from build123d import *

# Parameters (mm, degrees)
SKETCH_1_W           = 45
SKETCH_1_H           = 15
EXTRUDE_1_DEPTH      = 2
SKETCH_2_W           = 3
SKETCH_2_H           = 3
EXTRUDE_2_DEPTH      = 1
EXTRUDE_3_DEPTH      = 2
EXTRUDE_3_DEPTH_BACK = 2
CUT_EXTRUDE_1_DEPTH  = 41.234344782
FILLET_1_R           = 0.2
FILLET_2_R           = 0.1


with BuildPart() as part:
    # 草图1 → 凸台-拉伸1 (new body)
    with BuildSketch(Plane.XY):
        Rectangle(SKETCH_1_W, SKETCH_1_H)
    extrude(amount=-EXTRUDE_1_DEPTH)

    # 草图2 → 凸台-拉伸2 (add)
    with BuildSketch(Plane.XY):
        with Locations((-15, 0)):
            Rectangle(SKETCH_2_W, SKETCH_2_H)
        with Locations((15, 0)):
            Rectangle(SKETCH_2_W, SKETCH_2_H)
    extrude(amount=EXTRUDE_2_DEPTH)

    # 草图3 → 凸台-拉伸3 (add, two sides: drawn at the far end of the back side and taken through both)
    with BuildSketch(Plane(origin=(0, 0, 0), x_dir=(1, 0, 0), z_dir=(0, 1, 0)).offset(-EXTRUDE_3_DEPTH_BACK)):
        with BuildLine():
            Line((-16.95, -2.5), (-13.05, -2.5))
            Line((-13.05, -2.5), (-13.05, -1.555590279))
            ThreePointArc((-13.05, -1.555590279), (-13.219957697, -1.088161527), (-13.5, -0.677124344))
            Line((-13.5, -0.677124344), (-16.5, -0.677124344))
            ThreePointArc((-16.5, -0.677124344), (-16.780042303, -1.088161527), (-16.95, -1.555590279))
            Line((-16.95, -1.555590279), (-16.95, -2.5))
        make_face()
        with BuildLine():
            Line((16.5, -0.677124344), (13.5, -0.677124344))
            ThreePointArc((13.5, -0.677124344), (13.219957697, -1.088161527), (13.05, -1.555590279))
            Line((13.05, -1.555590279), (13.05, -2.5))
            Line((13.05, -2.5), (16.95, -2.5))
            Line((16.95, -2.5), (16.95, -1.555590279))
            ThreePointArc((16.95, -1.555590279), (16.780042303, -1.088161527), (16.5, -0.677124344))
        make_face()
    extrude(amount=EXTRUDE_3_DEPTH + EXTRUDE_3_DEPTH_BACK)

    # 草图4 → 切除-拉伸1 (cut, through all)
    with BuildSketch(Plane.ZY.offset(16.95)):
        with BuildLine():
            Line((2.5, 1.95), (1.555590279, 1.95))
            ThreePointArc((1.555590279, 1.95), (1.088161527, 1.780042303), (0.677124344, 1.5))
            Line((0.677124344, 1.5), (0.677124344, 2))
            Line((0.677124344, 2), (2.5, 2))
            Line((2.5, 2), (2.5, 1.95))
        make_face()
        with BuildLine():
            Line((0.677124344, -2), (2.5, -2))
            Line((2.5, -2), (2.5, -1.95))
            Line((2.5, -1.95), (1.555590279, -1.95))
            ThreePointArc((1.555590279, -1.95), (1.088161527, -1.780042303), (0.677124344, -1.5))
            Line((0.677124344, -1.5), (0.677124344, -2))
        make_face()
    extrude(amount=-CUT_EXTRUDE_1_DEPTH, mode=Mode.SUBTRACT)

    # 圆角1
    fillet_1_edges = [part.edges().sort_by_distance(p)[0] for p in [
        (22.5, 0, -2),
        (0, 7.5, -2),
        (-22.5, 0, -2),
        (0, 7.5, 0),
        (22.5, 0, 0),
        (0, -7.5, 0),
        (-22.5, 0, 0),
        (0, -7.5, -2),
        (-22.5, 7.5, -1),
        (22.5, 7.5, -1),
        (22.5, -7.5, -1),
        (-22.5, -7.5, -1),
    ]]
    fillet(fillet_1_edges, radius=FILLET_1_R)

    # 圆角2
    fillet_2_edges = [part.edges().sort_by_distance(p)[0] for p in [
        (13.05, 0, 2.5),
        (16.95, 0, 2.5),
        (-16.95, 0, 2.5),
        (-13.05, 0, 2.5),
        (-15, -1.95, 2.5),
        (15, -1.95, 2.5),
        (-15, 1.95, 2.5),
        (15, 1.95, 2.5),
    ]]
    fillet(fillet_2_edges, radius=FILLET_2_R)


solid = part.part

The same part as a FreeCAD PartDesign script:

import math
import FreeCAD as App
import Part
import Sketcher
Q = App.Units.Quantity


def edges_at(feature, points):
    """Names of the edges that pass closest to the given points."""
    edges = feature.Shape.Edges
    near = lambda p: min(range(len(edges)), key=lambda i: edges[i].distToShape(Part.Vertex(*p))[0])
    return sorted({f"Edge{near(p) + 1}" for p in points})

doc = App.newDocument("Part")
body = doc.addObject("PartDesign::Body", "Body")

# Sketch on XY plane
sketch1 = body.newObject("Sketcher::SketchObject", "Sketch")
sketch1.AttachmentSupport = (doc.getObject("XY_Plane"), [""])
sketch1.MapMode = "FlatFace"
sketch1.addGeometry(Part.LineSegment(App.Vector(-22, 8, 0), App.Vector(-22, -8, 0)), False)
sketch1.addGeometry(Part.LineSegment(App.Vector(-22, -8, 0), App.Vector(22, -8, 0)), False)
sketch1.addGeometry(Part.LineSegment(App.Vector(22, -8, 0), App.Vector(22, 8, 0)), False)
sketch1.addGeometry(Part.LineSegment(App.Vector(22, 8, 0), App.Vector(-22, 8, 0)), False)
sketch1.addConstraint(Sketcher.Constraint("Coincident", 0, 2, 1, 1))
sketch1.addConstraint(Sketcher.Constraint("Coincident", 1, 2, 2, 1))
sketch1.addConstraint(Sketcher.Constraint("Coincident", 2, 2, 3, 1))
sketch1.addConstraint(Sketcher.Constraint("Coincident", 3, 2, 0, 1))
sketch1.addConstraint(Sketcher.Constraint("Vertical", 0))
sketch1.addConstraint(Sketcher.Constraint("Horizontal", 1))
sketch1.addConstraint(Sketcher.Constraint("Vertical", 2))
sketch1.addConstraint(Sketcher.Constraint("Horizontal", 3))
sketch1.addConstraint(Sketcher.Constraint("Symmetric", 0, 2, 2, 2, -1, 1))
sketch1.addConstraint(Sketcher.Constraint("DistanceX", 1, 1, 1, 2, Q("45 mm")))
sketch1.addConstraint(Sketcher.Constraint("DistanceY", 0, 2, 0, 1, Q("15 mm")))
pad1 = body.newObject("PartDesign::Pad", "Pad")
pad1.Profile = sketch1
pad1.Length = 2
pad1.Reversed = True

# Sketch on XY plane
sketch2 = body.newObject("Sketcher::SketchObject", "Sketch001")
sketch2.AttachmentSupport = (doc.getObject("XY_Plane"), [""])
sketch2.MapMode = "FlatFace"
sketch2.addGeometry(Part.LineSegment(App.Vector(-16.5, 1.5, 0), App.Vector(-16.5, -1.5, 0)), False)
sketch2.addGeometry(Part.LineSegment(App.Vector(-16.5, -1.5, 0), App.Vector(-13.5, -1.5, 0)), False)
sketch2.addGeometry(Part.LineSegment(App.Vector(-13.5, -1.5, 0), App.Vector(-13.5, 1.5, 0)), False)
sketch2.addGeometry(Part.LineSegment(App.Vector(-13.5, 1.5, 0), App.Vector(-16.5, 1.5, 0)), False)
sketch2.addGeometry(Part.LineSegment(App.Vector(13.5, 1.5, 0), App.Vector(13.5, -1.5, 0)), False)
sketch2.addGeometry(Part.LineSegment(App.Vector(13.5, -1.5, 0), App.Vector(16.5, -1.5, 0)), False)
sketch2.addGeometry(Part.LineSegment(App.Vector(16.5, -1.5, 0), App.Vector(16.5, 1.5, 0)), False)
sketch2.addGeometry(Part.LineSegment(App.Vector(16.5, 1.5, 0), App.Vector(13.5, 1.5, 0)), False)
sketch2.addConstraint(Sketcher.Constraint("Coincident", 0, 2, 1, 1))
sketch2.addConstraint(Sketcher.Constraint("Coincident", 1, 2, 2, 1))
sketch2.addConstraint(Sketcher.Constraint("Coincident", 2, 2, 3, 1))
sketch2.addConstraint(Sketcher.Constraint("Coincident", 3, 2, 0, 1))
sketch2.addConstraint(Sketcher.Constraint("Coincident", 4, 2, 5, 1))
sketch2.addConstraint(Sketcher.Constraint("Coincident", 5, 2, 6, 1))
sketch2.addConstraint(Sketcher.Constraint("Coincident", 6, 2, 7, 1))
sketch2.addConstraint(Sketcher.Constraint("Coincident", 7, 2, 4, 1))
sketch2.addConstraint(Sketcher.Constraint("Vertical", 0))
sketch2.addConstraint(Sketcher.Constraint("Horizontal", 1))
sketch2.addConstraint(Sketcher.Constraint("Vertical", 2))
sketch2.addConstraint(Sketcher.Constraint("Horizontal", 3))
sketch2.addConstraint(Sketcher.Constraint("Vertical", 4))
sketch2.addConstraint(Sketcher.Constraint("Horizontal", 5))
sketch2.addConstraint(Sketcher.Constraint("Vertical", 6))
sketch2.addConstraint(Sketcher.Constraint("Horizontal", 7))
sketch2.addConstraint(Sketcher.Constraint("Symmetric", 2, 2, 4, 2, -1, 1))
sketch2.addConstraint(Sketcher.Constraint("Symmetric", 0, 2, 6, 2, -1, 1))
sketch2.addConstraint(Sketcher.Constraint("Horizontal", 1, 2, 4, 2))
sketch2.addConstraint(Sketcher.Constraint("Equal", 7, 0))
sketch2.addConstraint(Sketcher.Constraint("DistanceX", 1, 1, 1, 2, Q("3 mm")))
sketch2.addConstraint(Sketcher.Constraint("DistanceX", 1, 2, 4, 2, Q("27 mm")))
pad2 = body.newObject("PartDesign::Pad", "Pad001")
pad2.Profile = sketch2
pad2.Length = 1

# Sketch on XZ plane
sketch3 = body.newObject("Sketcher::SketchObject", "Sketch002")
sketch3.AttachmentSupport = (doc.getObject("XZ_Plane"), [""])
sketch3.MapMode = "FlatFace"
sketch3.addGeometry(Part.LineSegment(App.Vector(-16.9, 2.5, 0), App.Vector(-13.1, 2.5, 0)), False)
sketch3.addGeometry(Part.LineSegment(App.Vector(-13.1, 2.5, 0), App.Vector(-13.1, 1.6, 0)), False)
sketch3.addGeometry(Part.ArcOfCircle(Part.Circle(App.Vector(-15, 2, 0), App.Vector(0, 0, 1), 2), math.radians(-41), math.radians(-13)), False)
sketch3.addGeometry(Part.LineSegment(App.Vector(-13.5, 0.7, 0), App.Vector(-16.5, 0.7, 0)), False)
sketch3.addGeometry(Part.ArcOfCircle(Part.Circle(App.Vector(-15, 2, 0), App.Vector(0, 0, 1), 2), math.radians(-167), math.radians(-139)), False)
sketch3.addGeometry(Part.LineSegment(App.Vector(-16.9, 1.6, 0), App.Vector(-16.9, 2.5, 0)), False)
sketch3.addGeometry(Part.LineSegment(App.Vector(16.5, 0.7, 0), App.Vector(13.5, 0.7, 0)), False)
sketch3.addGeometry(Part.ArcOfCircle(Part.Circle(App.Vector(15, 2, 0), App.Vector(0, 0, 1), 2), math.radians(-167), math.radians(-139)), False)
sketch3.addGeometry(Part.LineSegment(App.Vector(13.1, 1.6, 0), App.Vector(13.1, 2.5, 0)), False)
sketch3.addGeometry(Part.LineSegment(App.Vector(13.1, 2.5, 0), App.Vector(16.9, 2.5, 0)), False)
sketch3.addGeometry(Part.LineSegment(App.Vector(16.9, 2.5, 0), App.Vector(16.9, 1.6, 0)), False)
sketch3.addGeometry(Part.ArcOfCircle(Part.Circle(App.Vector(15, 2, 0), App.Vector(0, 0, 1), 2), math.radians(-41), math.radians(-13)), False)
sketch3.addConstraint(Sketcher.Constraint("Coincident", 0, 2, 1, 1))
sketch3.addConstraint(Sketcher.Constraint("Coincident", 1, 2, 2, 2))
sketch3.addConstraint(Sketcher.Constraint("Coincident", 2, 1, 3, 1))
sketch3.addConstraint(Sketcher.Constraint("Coincident", 3, 2, 4, 2))
sketch3.addConstraint(Sketcher.Constraint("Coincident", 4, 1, 5, 1))
sketch3.addConstraint(Sketcher.Constraint("Coincident", 5, 2, 0, 1))
sketch3.addConstraint(Sketcher.Constraint("Coincident", 6, 2, 7, 2))
sketch3.addConstraint(Sketcher.Constraint("Coincident", 7, 1, 8, 1))
sketch3.addConstraint(Sketcher.Constraint("Coincident", 8, 2, 9, 1))
sketch3.addConstraint(Sketcher.Constraint("Coincident", 9, 2, 10, 1))
sketch3.addConstraint(Sketcher.Constraint("Coincident", 10, 2, 11, 2))
sketch3.addConstraint(Sketcher.Constraint("Coincident", 11, 1, 6, 1))
sketch3.addConstraint(Sketcher.Constraint("Horizontal", 0))
sketch3.addConstraint(Sketcher.Constraint("Vertical", 1))
sketch3.addConstraint(Sketcher.Constraint("Horizontal", 3))
sketch3.addConstraint(Sketcher.Constraint("Vertical", 5))
sketch3.addConstraint(Sketcher.Constraint("Horizontal", 6))
sketch3.addConstraint(Sketcher.Constraint("Vertical", 8))
sketch3.addConstraint(Sketcher.Constraint("Horizontal", 9))
sketch3.addConstraint(Sketcher.Constraint("Vertical", 10))
sketch3.addConstraint(Sketcher.Constraint("Coincident", 4, 3, 2, 3))
sketch3.addConstraint(Sketcher.Constraint("Coincident", 11, 3, 7, 3))
sketch3.addConstraint(Sketcher.Constraint("Equal", 2, 4))
sketch3.addConstraint(Sketcher.Constraint("Equal", 4, 7))
sketch3.addConstraint(Sketcher.Constraint("Equal", 7, 11))
sketch3.addConstraint(Sketcher.Constraint("Symmetric", 2, 3, 7, 3, -2))
sketch3.addConstraint(Sketcher.Constraint("Symmetric", 0, 2, 8, 2, -2))
sketch3.addConstraint(Sketcher.Constraint("Horizontal", 1, 2, 4, 1))
sketch3.addConstraint(Sketcher.Constraint("Horizontal", 3, 2, 6, 2))
sketch3.addConstraint(Sketcher.Constraint("Horizontal", 7, 1, 10, 2))
sketch3.addConstraint(Sketcher.Constraint("Radius", 2, Q("2 mm")))
sketch3.addConstraint(Sketcher.Constraint("DistanceX", 3, 2, 3, 1, Q("3 mm")))
sketch3.addConstraint(Sketcher.Constraint("DistanceX", 0, 1, 0, 2, Q("3.9 mm")))
sketch3.addConstraint(Sketcher.Constraint("DistanceX", 2, 3, -1, 1, Q("15 mm")))
sketch3.addConstraint(Sketcher.Constraint("DistanceY", -1, 1, 2, 3, Q("2 mm")))
sketch3.addConstraint(Sketcher.Constraint("DistanceY", -1, 1, 0, 2, Q("2.5 mm")))
pad3 = body.newObject("PartDesign::Pad", "Pad002")
pad3.Profile = sketch3
pad3.Type = "TwoLengths"
pad3.Length = 2
pad3.Length2 = 2
pad3.Reversed = True

# Sketch on YZ plane
sketch4 = body.newObject("Sketcher::SketchObject", "Sketch003")
sketch4.AttachmentSupport = (doc.getObject("YZ_Plane"), [""])
sketch4.MapMode = "FlatFace"
sketch4.AttachmentOffset = App.Placement(App.Vector(0, 0, -16.95), App.Rotation())
sketch4.addGeometry(Part.LineSegment(App.Vector(1.95, 1.56, 0), App.Vector(1.95, 2.5, 0)), False)
sketch4.addGeometry(Part.LineSegment(App.Vector(1.95, 2.5, 0), App.Vector(2, 2.5, 0)), False)
sketch4.addGeometry(Part.LineSegment(App.Vector(2, 2.5, 0), App.Vector(2, 0.68, 0)), False)
sketch4.addGeometry(Part.LineSegment(App.Vector(2, 0.68, 0), App.Vector(1.5, 0.68, 0)), False)
sketch4.addGeometry(Part.ArcOfCircle(Part.Circle(App.Vector(0, 2, 0), App.Vector(0, 0, 1), 2), math.radians(-41), math.radians(-13)), False)
sketch4.addGeometry(Part.LineSegment(App.Vector(-2, 0.68, 0), App.Vector(-2, 2.5, 0)), False)
sketch4.addGeometry(Part.LineSegment(App.Vector(-2, 2.5, 0), App.Vector(-1.95, 2.5, 0)), False)
sketch4.addGeometry(Part.LineSegment(App.Vector(-1.95, 2.5, 0), App.Vector(-1.95, 1.56, 0)), False)
sketch4.addGeometry(Part.ArcOfCircle(Part.Circle(App.Vector(0, 2, 0), App.Vector(0, 0, 1), 2), math.radians(-167), math.radians(-139)), False)
sketch4.addGeometry(Part.LineSegment(App.Vector(-1.5, 0.68, 0), App.Vector(-2, 0.68, 0)), False)
sketch4.addConstraint(Sketcher.Constraint("Coincident", 0, 2, 1, 1))
sketch4.addConstraint(Sketcher.Constraint("Coincident", 1, 2, 2, 1))
sketch4.addConstraint(Sketcher.Constraint("Coincident", 2, 2, 3, 1))
sketch4.addConstraint(Sketcher.Constraint("Coincident", 3, 2, 4, 1))
sketch4.addConstraint(Sketcher.Constraint("Coincident", 4, 2, 0, 1))
sketch4.addConstraint(Sketcher.Constraint("Coincident", 5, 2, 6, 1))
sketch4.addConstraint(Sketcher.Constraint("Coincident", 6, 2, 7, 1))
sketch4.addConstraint(Sketcher.Constraint("Coincident", 7, 2, 8, 1))
sketch4.addConstraint(Sketcher.Constraint("Coincident", 8, 2, 9, 1))
sketch4.addConstraint(Sketcher.Constraint("Coincident", 9, 2, 5, 1))
sketch4.addConstraint(Sketcher.Constraint("Vertical", 0))
sketch4.addConstraint(Sketcher.Constraint("Horizontal", 1))
sketch4.addConstraint(Sketcher.Constraint("Vertical", 2))
sketch4.addConstraint(Sketcher.Constraint("Horizontal", 3))
sketch4.addConstraint(Sketcher.Constraint("Vertical", 5))
sketch4.addConstraint(Sketcher.Constraint("Horizontal", 6))
sketch4.addConstraint(Sketcher.Constraint("Vertical", 7))
sketch4.addConstraint(Sketcher.Constraint("Horizontal", 9))
sketch4.addConstraint(Sketcher.Constraint("Coincident", 8, 3, 4, 3))
sketch4.addConstraint(Sketcher.Constraint("Equal", 4, 8))
sketch4.addConstraint(Sketcher.Constraint("Symmetric", 1, 2, 5, 2, -2))
sketch4.addConstraint(Sketcher.Constraint("Symmetric", 4, 2, 7, 2, -2))
sketch4.addConstraint(Sketcher.Constraint("Horizontal", 3, 2, 8, 2))
sketch4.addConstraint(Sketcher.Constraint("Radius", 4, Q("2 mm")))
sketch4.addConstraint(Sketcher.Constraint("DistanceX", 3, 2, 3, 1, Q("0.5 mm")))
sketch4.addConstraint(Sketcher.Constraint("DistanceY", -1, 1, 4, 3, Q("2 mm")))
sketch4.addConstraint(Sketcher.Constraint("DistanceX", -1, 1, 1, 2, Q("2 mm")))
sketch4.addConstraint(Sketcher.Constraint("DistanceX", 1, 1, 1, 2, Q("0.05 mm")))
sketch4.addConstraint(Sketcher.Constraint("DistanceY", -1, 1, 0, 2, Q("2.5 mm")))
pocket1 = body.newObject("PartDesign::Pocket", "Pocket")
pocket1.Profile = sketch4
pocket1.Type = "ThroughAll"
pocket1.Reversed = True
doc.recompute()

fillet = body.newObject("PartDesign::Fillet", "Fillet")
fillet.Base = (pocket1, edges_at(pocket1, [
    (22.5, 0, -2),
    (0, 7.5, -2),
    (-22.5, 0, -2),
    (0, 7.5, 0),
    (22.5, 0, 0),
    (0, -7.5, 0),
    (-22.5, 0, 0),
    (0, -7.5, -2),
    (-22.5, 7.5, -1),
    (22.5, 7.5, -1),
    (22.5, -7.5, -1),
    (-22.5, -7.5, -1),
]))
fillet.Radius = 0.2
doc.recompute()

fillet2 = body.newObject("PartDesign::Fillet", "Fillet001")
fillet2.Base = (fillet, edges_at(fillet, [
    (13.05, 0, 2.5),
    (16.95, 0, 2.5),
    (-16.95, 0, 2.5),
    (-13.05, 0, 2.5),
    (-15, -1.95, 2.5),
    (15, -1.95, 2.5),
    (-15, 1.95, 2.5),
    (15, 1.95, 2.5),
]))
fillet2.Radius = 0.1

doc.recompute()
